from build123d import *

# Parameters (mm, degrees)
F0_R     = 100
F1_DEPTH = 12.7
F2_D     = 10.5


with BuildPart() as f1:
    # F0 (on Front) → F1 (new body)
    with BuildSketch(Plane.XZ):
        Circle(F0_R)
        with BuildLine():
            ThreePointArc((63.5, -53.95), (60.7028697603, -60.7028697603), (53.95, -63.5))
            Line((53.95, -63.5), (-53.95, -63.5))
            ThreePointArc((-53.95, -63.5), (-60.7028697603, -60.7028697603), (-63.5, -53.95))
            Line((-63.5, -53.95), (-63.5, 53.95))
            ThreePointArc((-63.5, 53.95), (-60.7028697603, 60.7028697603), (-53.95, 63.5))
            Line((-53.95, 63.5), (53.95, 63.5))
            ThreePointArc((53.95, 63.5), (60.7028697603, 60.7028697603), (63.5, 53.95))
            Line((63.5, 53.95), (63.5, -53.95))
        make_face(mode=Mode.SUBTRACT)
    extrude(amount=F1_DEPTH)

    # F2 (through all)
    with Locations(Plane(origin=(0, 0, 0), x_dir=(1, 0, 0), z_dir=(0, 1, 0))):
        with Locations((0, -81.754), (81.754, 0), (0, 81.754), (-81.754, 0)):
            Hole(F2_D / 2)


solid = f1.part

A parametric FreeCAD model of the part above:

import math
import FreeCAD as App
import Part
import Sketcher
Q = App.Units.Quantity

doc = App.newDocument("Part")
body = doc.addObject("PartDesign::Body", "Body")

sketch1 = doc.addObject("Sketcher::SketchObject", "Sketch")
body.addObject(sketch1)
sketch1.AttachmentSupport = (doc.XZ_Plane, [""])
sketch1.MapMode = "FlatFace"
sketch1.addGeometry([
    Part.Circle(App.Vector(0, 0, 0), App.Vector(0, 0, 1), 100),
    Part.LineSegment(App.Vector(63.5, 53.95, 0), App.Vector(63.5, -53.95, 0)),
    Part.ArcOfCircle(Part.Circle(App.Vector(53.95, -53.95, 0), App.Vector(0, 0, 1), 9.55), math.radians(-90), math.radians(0)),
    Part.LineSegment(App.Vector(53.95, -63.5, 0), App.Vector(-53.95, -63.5, 0)),
    Part.ArcOfCircle(Part.Circle(App.Vector(-53.95, -53.95, 0), App.Vector(0, 0, 1), 9.55), math.radians(180), math.radians(270)),
    Part.LineSegment(App.Vector(-63.5, -53.95, 0), App.Vector(-63.5, 53.95, 0)),
    Part.ArcOfCircle(Part.Circle(App.Vector(-53.95, 53.95, 0), App.Vector(0, 0, 1), 9.55), math.radians(90), math.radians(180)),
    Part.LineSegment(App.Vector(-53.95, 63.5, 0), App.Vector(53.95, 63.5, 0)),
    Part.ArcOfCircle(Part.Circle(App.Vector(53.95, 53.95, 0), App.Vector(0, 0, 1), 9.55), math.radians(0), math.radians(90)),
], False)
sketch1.addConstraint([
    Sketcher.Constraint("Tangent", 1, 2, 2, 2),
    Sketcher.Constraint("Tangent", 2, 1, 3, 1),
    Sketcher.Constraint("Tangent", 3, 2, 4, 2),
    Sketcher.Constraint("Tangent", 4, 1, 5, 1),
    Sketcher.Constraint("Tangent", 5, 2, 6, 2),
    Sketcher.Constraint("Tangent", 6, 1, 7, 1),
    Sketcher.Constraint("Tangent", 7, 2, 8, 2),
    Sketcher.Constraint("Tangent", 8, 1, 1, 1),
    Sketcher.Constraint("Vertical", 1),
    Sketcher.Constraint("Horizontal", 3),
    Sketcher.Constraint("Vertical", 5),
    Sketcher.Constraint("Horizontal", 7),
    Sketcher.Constraint("Coincident", 0, 3, -1, 1),
    Sketcher.Constraint("Equal", 2, 4),
    Sketcher.Constraint("Equal", 4, 6),
    Sketcher.Constraint("Equal", 6, 8),
    Sketcher.Constraint("Symmetric", 2, 3, 6, 3, -1, 1),
    Sketcher.Constraint("Equal", 7, 1),
    Sketcher.Constraint("Diameter", 0, Q("200 mm")),
    Sketcher.Constraint("Radius", 2, Q("9.55 mm")),
    Sketcher.Constraint("DistanceX", 3, 2, 3, 1, Q("107.9 mm")),
])
pad1 = doc.addObject("PartDesign::Pad", "Pad")
body.addObject(pad1)
pad1.Profile = sketch1
pad1.Length = 12.7

sketch2 = doc.addObject("Sketcher::SketchObject", "Sketch001")
body.addObject(sketch2)
sketch2.AttachmentSupport = (doc.XZ_Plane, [""])
sketch2.MapMode = "FlatFace"
sketch2.addGeometry([
    Part.Circle(App.Vector(0, 81.754, 0), App.Vector(0, 0, 1), 5.25),
    Part.Circle(App.Vector(81.754, 0, 0), App.Vector(0, 0, 1), 5.25),
    Part.Circle(App.Vector(0, -81.754, 0), App.Vector(0, 0, 1), 5.25),
    Part.Circle(App.Vector(-81.754, 0, 0), App.Vector(0, 0, 1), 5.25),
], False)
sketch2.addConstraint([
    Sketcher.Constraint("Equal", 0, 1),
    Sketcher.Constraint("Equal", 1, 2),
    Sketcher.Constraint("Equal", 2, 3),
    Sketcher.Constraint("Symmetric", 0, 3, 2, 3, -1, 1),
    Sketcher.Constraint("Symmetric", 1, 3, 3, 3, -1, 1),
    Sketcher.Constraint("PointOnObject", 0, 3, -2),
    Sketcher.Constraint("PointOnObject", 1, 3, -1),
    Sketcher.Constraint("Diameter", 0, Q("10.5 mm")),
    Sketcher.Constraint("DistanceY", -1, 1, 0, 3, Q("81.754 mm")),
    Sketcher.Constraint("DistanceX", -1, 1, 1, 3, Q("81.754 mm")),
])
doc.recompute()
hole = doc.addObject("PartDesign::Hole", "Hole")
body.addObject(hole)
hole.Profile = sketch2
hole.ThreadType = "None"
hole.Diameter = 10.5
hole.DepthType = "ThroughAll"
hole.Reversed = True

doc.recompute()
